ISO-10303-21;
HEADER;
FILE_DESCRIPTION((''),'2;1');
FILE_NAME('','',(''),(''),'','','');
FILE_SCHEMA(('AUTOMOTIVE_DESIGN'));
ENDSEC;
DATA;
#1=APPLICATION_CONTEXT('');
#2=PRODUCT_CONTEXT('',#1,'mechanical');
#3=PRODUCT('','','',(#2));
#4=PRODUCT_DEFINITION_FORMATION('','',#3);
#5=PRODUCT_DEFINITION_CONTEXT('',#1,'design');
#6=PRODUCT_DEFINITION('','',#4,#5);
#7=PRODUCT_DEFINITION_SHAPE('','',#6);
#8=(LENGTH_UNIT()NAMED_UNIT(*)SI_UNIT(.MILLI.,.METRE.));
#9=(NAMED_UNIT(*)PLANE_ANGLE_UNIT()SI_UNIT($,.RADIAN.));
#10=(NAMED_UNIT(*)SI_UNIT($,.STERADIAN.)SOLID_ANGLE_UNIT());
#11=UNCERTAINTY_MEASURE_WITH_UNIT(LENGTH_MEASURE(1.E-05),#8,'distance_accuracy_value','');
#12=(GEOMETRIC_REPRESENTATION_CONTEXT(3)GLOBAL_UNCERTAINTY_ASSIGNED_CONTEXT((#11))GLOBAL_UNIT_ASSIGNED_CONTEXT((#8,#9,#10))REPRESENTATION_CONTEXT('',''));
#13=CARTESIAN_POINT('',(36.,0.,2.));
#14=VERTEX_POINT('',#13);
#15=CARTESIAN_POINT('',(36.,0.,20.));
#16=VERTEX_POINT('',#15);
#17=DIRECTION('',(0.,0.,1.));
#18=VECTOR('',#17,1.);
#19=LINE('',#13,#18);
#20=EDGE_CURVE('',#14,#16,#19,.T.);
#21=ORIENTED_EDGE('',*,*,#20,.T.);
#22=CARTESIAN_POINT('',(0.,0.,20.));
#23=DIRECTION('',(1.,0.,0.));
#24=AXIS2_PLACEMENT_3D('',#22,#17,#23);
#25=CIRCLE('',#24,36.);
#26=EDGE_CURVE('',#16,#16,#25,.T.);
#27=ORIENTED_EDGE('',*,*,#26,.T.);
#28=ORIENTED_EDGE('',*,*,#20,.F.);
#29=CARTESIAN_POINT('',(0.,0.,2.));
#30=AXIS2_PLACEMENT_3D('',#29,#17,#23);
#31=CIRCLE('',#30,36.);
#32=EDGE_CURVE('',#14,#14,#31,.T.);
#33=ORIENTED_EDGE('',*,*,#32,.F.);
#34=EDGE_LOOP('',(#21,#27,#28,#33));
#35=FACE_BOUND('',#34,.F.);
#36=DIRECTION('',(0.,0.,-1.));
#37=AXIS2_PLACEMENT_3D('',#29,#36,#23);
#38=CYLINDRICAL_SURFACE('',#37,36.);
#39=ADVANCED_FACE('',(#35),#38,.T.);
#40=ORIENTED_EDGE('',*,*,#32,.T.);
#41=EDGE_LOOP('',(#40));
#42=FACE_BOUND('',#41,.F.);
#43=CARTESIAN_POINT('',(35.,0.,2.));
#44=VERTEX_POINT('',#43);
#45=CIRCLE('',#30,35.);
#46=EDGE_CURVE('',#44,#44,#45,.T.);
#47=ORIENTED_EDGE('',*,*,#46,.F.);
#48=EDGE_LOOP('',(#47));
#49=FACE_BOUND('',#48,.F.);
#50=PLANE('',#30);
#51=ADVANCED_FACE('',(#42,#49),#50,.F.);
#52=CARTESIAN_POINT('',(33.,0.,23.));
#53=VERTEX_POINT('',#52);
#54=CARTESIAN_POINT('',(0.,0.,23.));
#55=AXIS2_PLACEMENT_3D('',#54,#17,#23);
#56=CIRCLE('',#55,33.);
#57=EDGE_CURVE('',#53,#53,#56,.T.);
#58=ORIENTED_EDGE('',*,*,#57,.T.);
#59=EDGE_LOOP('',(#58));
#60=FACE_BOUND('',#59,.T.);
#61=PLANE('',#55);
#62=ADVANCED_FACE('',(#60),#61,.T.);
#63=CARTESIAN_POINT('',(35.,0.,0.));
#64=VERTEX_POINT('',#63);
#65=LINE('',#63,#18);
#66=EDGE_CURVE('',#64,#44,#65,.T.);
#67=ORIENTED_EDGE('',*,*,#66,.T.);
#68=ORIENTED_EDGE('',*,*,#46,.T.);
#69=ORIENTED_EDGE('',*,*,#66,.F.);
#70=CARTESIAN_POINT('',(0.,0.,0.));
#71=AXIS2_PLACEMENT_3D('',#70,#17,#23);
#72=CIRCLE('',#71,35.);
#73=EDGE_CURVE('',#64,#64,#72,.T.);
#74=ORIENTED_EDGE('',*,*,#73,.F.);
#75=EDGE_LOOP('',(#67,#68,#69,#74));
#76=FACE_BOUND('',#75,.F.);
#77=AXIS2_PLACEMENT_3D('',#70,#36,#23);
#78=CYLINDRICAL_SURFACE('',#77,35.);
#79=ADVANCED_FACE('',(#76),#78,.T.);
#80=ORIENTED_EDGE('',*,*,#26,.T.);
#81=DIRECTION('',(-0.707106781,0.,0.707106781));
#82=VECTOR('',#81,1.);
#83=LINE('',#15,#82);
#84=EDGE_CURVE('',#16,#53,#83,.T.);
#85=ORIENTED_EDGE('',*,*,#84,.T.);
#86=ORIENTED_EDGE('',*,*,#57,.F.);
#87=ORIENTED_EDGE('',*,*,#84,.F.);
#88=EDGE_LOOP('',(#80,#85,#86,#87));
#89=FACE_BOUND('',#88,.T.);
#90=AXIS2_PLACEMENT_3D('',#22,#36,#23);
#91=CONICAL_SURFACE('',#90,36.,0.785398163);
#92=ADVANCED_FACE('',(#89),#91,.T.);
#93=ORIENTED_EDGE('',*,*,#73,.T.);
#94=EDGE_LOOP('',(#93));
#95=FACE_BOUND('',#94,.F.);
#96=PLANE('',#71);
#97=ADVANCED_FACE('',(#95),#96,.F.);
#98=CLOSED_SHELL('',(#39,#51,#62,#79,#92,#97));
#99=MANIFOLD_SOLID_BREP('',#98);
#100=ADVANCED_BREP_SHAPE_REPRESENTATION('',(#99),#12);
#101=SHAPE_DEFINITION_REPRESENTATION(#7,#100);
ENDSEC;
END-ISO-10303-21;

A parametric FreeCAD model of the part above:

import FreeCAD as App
import Part
import Sketcher
Q = App.Units.Quantity


def edges_at(feature, points):
    """Names of the edges that pass closest to the given points."""
    edges = feature.Shape.Edges
    near = lambda p: min(range(len(edges)), key=lambda i: edges[i].distToShape(Part.Vertex(*p))[0])
    return sorted({f"Edge{near(p) + 1}" for p in points})

doc = App.newDocument("Part")
body = doc.addObject("PartDesign::Body", "Body")

sketch1 = body.newObject("Sketcher::SketchObject", "Sketch")
sketch1.AttachmentSupport = (doc.getObject("XY_Plane"), [""])
sketch1.MapMode = "FlatFace"
sketch1.addGeometry(Part.Circle(App.Vector(0, 0, 0), App.Vector(0, 0, 1), 35), False)
sketch1.addConstraint(Sketcher.Constraint("Coincident", 0, 3, -1, 1))
sketch1.addConstraint(Sketcher.Constraint("Diameter", 0, Q("70 mm")))
pad1 = body.newObject("PartDesign::Pad", "Pad")
pad1.Profile = sketch1
pad1.Length = 2

sketch2 = body.newObject("Sketcher::SketchObject", "Sketch001")
sketch2.AttachmentSupport = (doc.getObject("XY_Plane"), [""])
sketch2.MapMode = "FlatFace"
sketch2.AttachmentOffset = App.Placement(App.Vector(0, 0, 2), App.Rotation())
sketch2.addGeometry(Part.Circle(App.Vector(0, 0, 0), App.Vector(0, 0, 1), 36), False)
sketch2.addConstraint(Sketcher.Constraint("Coincident", 0, 3, -1, 1))
sketch2.addConstraint(Sketcher.Constraint("Diameter", 0, Q("72 mm")))
pad2 = body.newObject("PartDesign::Pad", "Pad001")
pad2.Profile = sketch2
pad2.Length = 21
doc.recompute()

chamfer = body.newObject("PartDesign::Chamfer", "Chamfer")
chamfer.Base = (pad2, edges_at(pad2, [(-36, 0, 23)]))
chamfer.Size = 3

doc.recompute()
